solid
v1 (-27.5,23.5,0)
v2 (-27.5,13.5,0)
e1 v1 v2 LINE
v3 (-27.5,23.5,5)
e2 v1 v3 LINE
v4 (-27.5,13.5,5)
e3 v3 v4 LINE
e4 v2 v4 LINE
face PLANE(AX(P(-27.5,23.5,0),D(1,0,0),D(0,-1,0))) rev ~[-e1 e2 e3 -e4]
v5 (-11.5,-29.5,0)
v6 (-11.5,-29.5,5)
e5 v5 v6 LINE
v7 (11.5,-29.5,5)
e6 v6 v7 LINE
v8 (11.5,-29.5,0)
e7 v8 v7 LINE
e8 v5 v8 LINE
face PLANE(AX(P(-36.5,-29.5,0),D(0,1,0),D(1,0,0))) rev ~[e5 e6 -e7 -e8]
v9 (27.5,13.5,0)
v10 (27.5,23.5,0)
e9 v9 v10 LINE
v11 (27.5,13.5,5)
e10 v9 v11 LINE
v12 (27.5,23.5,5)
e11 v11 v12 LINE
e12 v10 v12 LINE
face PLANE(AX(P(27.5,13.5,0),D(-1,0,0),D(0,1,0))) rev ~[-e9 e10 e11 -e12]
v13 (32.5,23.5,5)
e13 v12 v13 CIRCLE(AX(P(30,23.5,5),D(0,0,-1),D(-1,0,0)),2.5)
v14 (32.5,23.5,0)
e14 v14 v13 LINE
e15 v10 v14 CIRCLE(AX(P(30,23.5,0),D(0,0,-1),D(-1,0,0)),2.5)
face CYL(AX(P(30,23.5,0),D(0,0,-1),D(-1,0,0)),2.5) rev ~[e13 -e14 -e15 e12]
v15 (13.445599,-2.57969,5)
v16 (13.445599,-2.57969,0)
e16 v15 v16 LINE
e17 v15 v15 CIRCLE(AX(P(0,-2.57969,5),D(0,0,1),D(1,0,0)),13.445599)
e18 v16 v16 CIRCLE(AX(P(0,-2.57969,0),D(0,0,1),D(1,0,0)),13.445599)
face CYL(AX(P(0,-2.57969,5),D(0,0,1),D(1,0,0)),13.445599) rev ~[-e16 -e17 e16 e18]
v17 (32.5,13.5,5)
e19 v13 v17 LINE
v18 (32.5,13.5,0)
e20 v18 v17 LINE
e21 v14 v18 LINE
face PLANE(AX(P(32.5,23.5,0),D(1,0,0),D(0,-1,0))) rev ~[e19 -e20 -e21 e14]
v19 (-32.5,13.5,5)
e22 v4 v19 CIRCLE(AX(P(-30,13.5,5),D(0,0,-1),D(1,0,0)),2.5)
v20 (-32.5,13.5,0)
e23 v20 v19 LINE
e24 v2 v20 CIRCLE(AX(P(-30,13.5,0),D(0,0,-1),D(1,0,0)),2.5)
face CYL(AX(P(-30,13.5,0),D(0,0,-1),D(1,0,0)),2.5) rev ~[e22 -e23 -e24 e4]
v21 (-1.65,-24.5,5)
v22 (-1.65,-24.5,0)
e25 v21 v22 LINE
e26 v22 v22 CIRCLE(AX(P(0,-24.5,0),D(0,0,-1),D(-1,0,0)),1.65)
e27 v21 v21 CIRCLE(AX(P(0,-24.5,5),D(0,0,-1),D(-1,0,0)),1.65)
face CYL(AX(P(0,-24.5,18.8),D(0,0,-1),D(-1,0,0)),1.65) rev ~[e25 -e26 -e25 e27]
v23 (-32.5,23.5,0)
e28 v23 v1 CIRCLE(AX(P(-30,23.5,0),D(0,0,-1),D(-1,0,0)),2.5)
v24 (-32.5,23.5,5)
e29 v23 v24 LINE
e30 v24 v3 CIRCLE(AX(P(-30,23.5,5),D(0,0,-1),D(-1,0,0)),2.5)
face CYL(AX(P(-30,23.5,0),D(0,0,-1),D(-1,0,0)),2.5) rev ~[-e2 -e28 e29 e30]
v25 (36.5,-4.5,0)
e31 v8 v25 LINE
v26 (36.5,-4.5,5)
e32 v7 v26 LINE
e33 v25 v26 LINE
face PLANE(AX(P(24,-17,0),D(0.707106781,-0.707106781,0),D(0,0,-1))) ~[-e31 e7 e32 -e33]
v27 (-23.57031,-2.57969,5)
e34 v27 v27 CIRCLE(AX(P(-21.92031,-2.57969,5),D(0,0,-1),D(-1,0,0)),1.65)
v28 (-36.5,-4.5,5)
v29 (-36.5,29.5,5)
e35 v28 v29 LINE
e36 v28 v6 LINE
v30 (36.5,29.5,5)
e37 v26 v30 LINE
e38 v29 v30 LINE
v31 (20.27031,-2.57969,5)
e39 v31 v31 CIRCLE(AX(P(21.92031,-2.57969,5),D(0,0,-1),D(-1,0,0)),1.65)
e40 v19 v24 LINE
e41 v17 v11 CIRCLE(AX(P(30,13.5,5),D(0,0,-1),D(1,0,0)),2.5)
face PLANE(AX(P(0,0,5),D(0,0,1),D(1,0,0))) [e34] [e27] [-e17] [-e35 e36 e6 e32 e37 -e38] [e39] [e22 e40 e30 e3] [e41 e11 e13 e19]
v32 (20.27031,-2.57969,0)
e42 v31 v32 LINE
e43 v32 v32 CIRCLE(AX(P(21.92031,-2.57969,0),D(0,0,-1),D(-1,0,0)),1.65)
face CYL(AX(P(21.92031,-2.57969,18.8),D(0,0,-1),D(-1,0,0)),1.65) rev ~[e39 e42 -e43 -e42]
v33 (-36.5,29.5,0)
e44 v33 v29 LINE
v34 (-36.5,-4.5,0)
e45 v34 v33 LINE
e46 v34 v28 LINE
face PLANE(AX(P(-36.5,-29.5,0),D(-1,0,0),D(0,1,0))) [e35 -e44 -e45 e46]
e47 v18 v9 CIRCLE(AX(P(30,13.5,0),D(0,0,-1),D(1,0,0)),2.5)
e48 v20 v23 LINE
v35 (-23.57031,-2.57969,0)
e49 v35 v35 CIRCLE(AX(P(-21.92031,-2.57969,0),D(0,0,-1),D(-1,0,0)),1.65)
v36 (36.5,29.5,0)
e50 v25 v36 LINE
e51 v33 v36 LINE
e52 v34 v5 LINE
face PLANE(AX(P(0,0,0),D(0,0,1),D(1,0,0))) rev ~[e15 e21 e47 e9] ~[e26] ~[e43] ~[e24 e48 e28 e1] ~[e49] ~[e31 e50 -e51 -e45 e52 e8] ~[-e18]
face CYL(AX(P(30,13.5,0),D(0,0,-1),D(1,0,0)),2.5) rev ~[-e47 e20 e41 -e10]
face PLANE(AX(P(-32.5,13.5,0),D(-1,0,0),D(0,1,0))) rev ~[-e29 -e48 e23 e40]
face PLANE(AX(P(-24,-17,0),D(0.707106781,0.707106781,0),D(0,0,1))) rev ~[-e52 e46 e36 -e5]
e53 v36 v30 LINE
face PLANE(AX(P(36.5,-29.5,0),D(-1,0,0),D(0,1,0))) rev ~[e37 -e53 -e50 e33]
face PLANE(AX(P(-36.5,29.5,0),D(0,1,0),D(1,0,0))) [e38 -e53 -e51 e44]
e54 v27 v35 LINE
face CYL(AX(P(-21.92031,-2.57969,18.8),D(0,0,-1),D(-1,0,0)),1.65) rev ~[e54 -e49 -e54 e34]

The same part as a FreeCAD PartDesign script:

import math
import FreeCAD as App
import Part
import Sketcher
Q = App.Units.Quantity


def edges_at(feature, points):
    """Names of the edges that pass closest to the given points."""
    edges = feature.Shape.Edges
    near = lambda p: min(range(len(edges)), key=lambda i: edges[i].distToShape(Part.Vertex(*p))[0])
    return sorted({f"Edge{near(p) + 1}" for p in points})

doc = App.newDocument("Part")
body = doc.addObject("PartDesign::Body", "Body")

sketch1 = doc.addObject("Sketcher::SketchObject", "Sketch")
body.addObject(sketch1)
sketch1.AttachmentSupport = (doc.XY_Plane, [""])
sketch1.MapMode = "FlatFace"
sketch1.addGeometry(Part.LineSegment(App.Vector(-36.5, 29.5, 0), App.Vector(-36.5, -29.5, 0)), False)
sketch1.addGeometry(Part.LineSegment(App.Vector(-36.5, -29.5, 0), App.Vector(36.5, -29.5, 0)), False)
sketch1.addGeometry(Part.LineSegment(App.Vector(36.5, -29.5, 0), App.Vector(36.5, 29.5, 0)), False)
sketch1.addGeometry(Part.LineSegment(App.Vector(36.5, 29.5, 0), App.Vector(-36.5, 29.5, 0)), False)
sketch1.addGeometry(Part.ArcOfCircle(Part.Circle(App.Vector(-30, 13.5, 0), App.Vector(0, 0, 1), 2.5), math.radians(180), math.radians(360)), False)
sketch1.addGeometry(Part.LineSegment(App.Vector(-32.5, 13.5, 0), App.Vector(-32.5, 23.5, 0)), False)
sketch1.addGeometry(Part.ArcOfCircle(Part.Circle(App.Vector(-30, 23.5, 0), App.Vector(0, 0, 1), 2.5), math.radians(0), math.radians(180)), False)
sketch1.addGeometry(Part.LineSegment(App.Vector(-27.5, 23.5, 0), App.Vector(-27.5, 13.5, 0)), False)
sketch1.addGeometry(Part.ArcOfCircle(Part.Circle(App.Vector(30, 13.5, 0), App.Vector(0, 0, 1), 2.5), math.radians(180), math.radians(360)), False)
sketch1.addGeometry(Part.LineSegment(App.Vector(27.5, 13.5, 0), App.Vector(27.5, 23.5, 0)), False)
sketch1.addGeometry(Part.ArcOfCircle(Part.Circle(App.Vector(30, 23.5, 0), App.Vector(0, 0, 1), 2.5), math.radians(0), math.radians(180)), False)
sketch1.addGeometry(Part.LineSegment(App.Vector(32.5, 23.5, 0), App.Vector(32.5, 13.5, 0)), False)
sketch1.addConstraint(Sketcher.Constraint("Coincident", 0, 2, 1, 1))
sketch1.addConstraint(Sketcher.Constraint("Coincident", 1, 2, 2, 1))
sketch1.addConstraint(Sketcher.Constraint("Coincident", 2, 2, 3, 1))
sketch1.addConstraint(Sketcher.Constraint("Coincident", 3, 2, 0, 1))
sketch1.addConstraint(Sketcher.Constraint("Tangent", 4, 1, 5, 1))
sketch1.addConstraint(Sketcher.Constraint("Tangent", 5, 2, 6, 2))
sketch1.addConstraint(Sketcher.Constraint("Tangent", 6, 1, 7, 1))
sketch1.addConstraint(Sketcher.Constraint("Tangent", 7, 2, 4, 2))
sketch1.addConstraint(Sketcher.Constraint("Tangent", 8, 1, 9, 1))
sketch1.addConstraint(Sketcher.Constraint("Tangent", 9, 2, 10, 2))
sketch1.addConstraint(Sketcher.Constraint("Tangent", 10, 1, 11, 1))
sketch1.addConstraint(Sketcher.Constraint("Tangent", 11, 2, 8, 2))
sketch1.addConstraint(Sketcher.Constraint("Vertical", 0))
sketch1.addConstraint(Sketcher.Constraint("Horizontal", 1))
sketch1.addConstraint(Sketcher.Constraint("Vertical", 2))
sketch1.addConstraint(Sketcher.Constraint("Horizontal", 3))
sketch1.addConstraint(Sketcher.Constraint("Vertical", 5))
sketch1.addConstraint(Sketcher.Constraint("Vertical", 7))
sketch1.addConstraint(Sketcher.Constraint("Vertical", 9))
sketch1.addConstraint(Sketcher.Constraint("Vertical", 11))
sketch1.addConstraint(Sketcher.Constraint("Equal", 6, 8))
sketch1.addConstraint(Sketcher.Constraint("Symmetric", 0, 2, 2, 2, -1, 1))
sketch1.addConstraint(Sketcher.Constraint("Symmetric", 4, 3, 8, 3, -2))
sketch1.addConstraint(Sketcher.Constraint("Horizontal", 6, 3, 10, 3))
sketch1.addConstraint(Sketcher.Constraint("Radius", 4, Q("2.5 mm")))
sketch1.addConstraint(Sketcher.Constraint("DistanceX", 1, 1, 1, 2, Q("73 mm")))
sketch1.addConstraint(Sketcher.Constraint("DistanceY", 0, 2, 0, 1, Q("59 mm")))
sketch1.addConstraint(Sketcher.Constraint("DistanceY", 5, 1, 5, 2, Q("10 mm")))
sketch1.addConstraint(Sketcher.Constraint("DistanceX", 4, 3, -1, 1, Q("30 mm")))
sketch1.addConstraint(Sketcher.Constraint("DistanceY", 0, 2, 4, 3, Q("43 mm")))
pad1 = doc.addObject("PartDesign::Pad", "Pad")
body.addObject(pad1)
pad1.Profile = sketch1
pad1.Length = 5
doc.recompute()

chamfer = doc.addObject("PartDesign::Chamfer", "Chamfer")
body.addObject(chamfer)
chamfer.Base = (pad1, edges_at(pad1, [(-36.5, -29.5, 2.5), (36.5, -29.5, 2.5)]))
chamfer.Size = 25

sketch2 = doc.addObject("Sketcher::SketchObject", "Sketch001")
body.addObject(sketch2)
sketch2.AttachmentSupport = (doc.XY_Plane, [""])
sketch2.MapMode = "FlatFace"
sketch2.AttachmentOffset = App.Placement(App.Vector(0, 0, 5), App.Rotation())
sketch2.addGeometry(Part.Circle(App.Vector(-21.92031, -2.57969, 0), App.Vector(0, 0, 1), 1.65), False)
sketch2.addGeometry(Part.Circle(App.Vector(0, -24.5, 0), App.Vector(0, 0, 1), 1.65), False)
sketch2.addGeometry(Part.Circle(App.Vector(21.92031, -2.57969, 0), App.Vector(0, 0, 1), 1.65), False)
sketch2.addConstraint(Sketcher.Constraint("Equal", 0, 1))
sketch2.addConstraint(Sketcher.Constraint("Equal", 1, 2))
sketch2.addConstraint(Sketcher.Constraint("Symmetric", 0, 3, 2, 3, -2))
sketch2.addConstraint(Sketcher.Constraint("PointOnObject", 1, 3, -2))
sketch2.addConstraint(Sketcher.Constraint("Diameter", 0, Q("3.3 mm")))
sketch2.addConstraint(Sketcher.Constraint("DistanceY", 1, 3, -1, 1, Q("24.5 mm")))
sketch2.addConstraint(Sketcher.Constraint("DistanceX", 0, 3, -1, 1, Q("21.92031 mm")))
sketch2.addConstraint(Sketcher.Constraint("DistanceY", 0, 3, -1, 1, Q("2.57969 mm")))
doc.recompute()
hole = doc.addObject("PartDesign::Hole", "Hole")
body.addObject(hole)
hole.Profile = sketch2
hole.ThreadType = "None"
hole.Diameter = 3.3
hole.DepthType = "Dimension"
hole.Depth = 13.8
hole.DrillPoint = "Angled"
hole.DrillPointAngle = 118

sketch3 = doc.addObject("Sketcher::SketchObject", "Sketch002")
body.addObject(sketch3)
sketch3.AttachmentSupport = (doc.XY_Plane, [""])
sketch3.MapMode = "FlatFace"
sketch3.AttachmentOffset = App.Placement(App.Vector(0, 0, 5), App.Rotation())
sketch3.addGeometry(Part.Circle(App.Vector(0, -2.57969, 0), App.Vector(0, 0, 1), 13.445599), False)
sketch3.addConstraint(Sketcher.Constraint("PointOnObject", 0, 3, -2))
sketch3.addConstraint(Sketcher.Constraint("Diameter", 0, Q("26.891197 mm")))
sketch3.addConstraint(Sketcher.Constraint("DistanceY", 0, 3, -1, 1, Q("2.57969 mm")))
pocket1 = doc.addObject("PartDesign::Pocket", "Pocket")
body.addObject(pocket1)
pocket1.Profile = sketch3
pocket1.Type = "ThroughAll"

doc.recompute()
